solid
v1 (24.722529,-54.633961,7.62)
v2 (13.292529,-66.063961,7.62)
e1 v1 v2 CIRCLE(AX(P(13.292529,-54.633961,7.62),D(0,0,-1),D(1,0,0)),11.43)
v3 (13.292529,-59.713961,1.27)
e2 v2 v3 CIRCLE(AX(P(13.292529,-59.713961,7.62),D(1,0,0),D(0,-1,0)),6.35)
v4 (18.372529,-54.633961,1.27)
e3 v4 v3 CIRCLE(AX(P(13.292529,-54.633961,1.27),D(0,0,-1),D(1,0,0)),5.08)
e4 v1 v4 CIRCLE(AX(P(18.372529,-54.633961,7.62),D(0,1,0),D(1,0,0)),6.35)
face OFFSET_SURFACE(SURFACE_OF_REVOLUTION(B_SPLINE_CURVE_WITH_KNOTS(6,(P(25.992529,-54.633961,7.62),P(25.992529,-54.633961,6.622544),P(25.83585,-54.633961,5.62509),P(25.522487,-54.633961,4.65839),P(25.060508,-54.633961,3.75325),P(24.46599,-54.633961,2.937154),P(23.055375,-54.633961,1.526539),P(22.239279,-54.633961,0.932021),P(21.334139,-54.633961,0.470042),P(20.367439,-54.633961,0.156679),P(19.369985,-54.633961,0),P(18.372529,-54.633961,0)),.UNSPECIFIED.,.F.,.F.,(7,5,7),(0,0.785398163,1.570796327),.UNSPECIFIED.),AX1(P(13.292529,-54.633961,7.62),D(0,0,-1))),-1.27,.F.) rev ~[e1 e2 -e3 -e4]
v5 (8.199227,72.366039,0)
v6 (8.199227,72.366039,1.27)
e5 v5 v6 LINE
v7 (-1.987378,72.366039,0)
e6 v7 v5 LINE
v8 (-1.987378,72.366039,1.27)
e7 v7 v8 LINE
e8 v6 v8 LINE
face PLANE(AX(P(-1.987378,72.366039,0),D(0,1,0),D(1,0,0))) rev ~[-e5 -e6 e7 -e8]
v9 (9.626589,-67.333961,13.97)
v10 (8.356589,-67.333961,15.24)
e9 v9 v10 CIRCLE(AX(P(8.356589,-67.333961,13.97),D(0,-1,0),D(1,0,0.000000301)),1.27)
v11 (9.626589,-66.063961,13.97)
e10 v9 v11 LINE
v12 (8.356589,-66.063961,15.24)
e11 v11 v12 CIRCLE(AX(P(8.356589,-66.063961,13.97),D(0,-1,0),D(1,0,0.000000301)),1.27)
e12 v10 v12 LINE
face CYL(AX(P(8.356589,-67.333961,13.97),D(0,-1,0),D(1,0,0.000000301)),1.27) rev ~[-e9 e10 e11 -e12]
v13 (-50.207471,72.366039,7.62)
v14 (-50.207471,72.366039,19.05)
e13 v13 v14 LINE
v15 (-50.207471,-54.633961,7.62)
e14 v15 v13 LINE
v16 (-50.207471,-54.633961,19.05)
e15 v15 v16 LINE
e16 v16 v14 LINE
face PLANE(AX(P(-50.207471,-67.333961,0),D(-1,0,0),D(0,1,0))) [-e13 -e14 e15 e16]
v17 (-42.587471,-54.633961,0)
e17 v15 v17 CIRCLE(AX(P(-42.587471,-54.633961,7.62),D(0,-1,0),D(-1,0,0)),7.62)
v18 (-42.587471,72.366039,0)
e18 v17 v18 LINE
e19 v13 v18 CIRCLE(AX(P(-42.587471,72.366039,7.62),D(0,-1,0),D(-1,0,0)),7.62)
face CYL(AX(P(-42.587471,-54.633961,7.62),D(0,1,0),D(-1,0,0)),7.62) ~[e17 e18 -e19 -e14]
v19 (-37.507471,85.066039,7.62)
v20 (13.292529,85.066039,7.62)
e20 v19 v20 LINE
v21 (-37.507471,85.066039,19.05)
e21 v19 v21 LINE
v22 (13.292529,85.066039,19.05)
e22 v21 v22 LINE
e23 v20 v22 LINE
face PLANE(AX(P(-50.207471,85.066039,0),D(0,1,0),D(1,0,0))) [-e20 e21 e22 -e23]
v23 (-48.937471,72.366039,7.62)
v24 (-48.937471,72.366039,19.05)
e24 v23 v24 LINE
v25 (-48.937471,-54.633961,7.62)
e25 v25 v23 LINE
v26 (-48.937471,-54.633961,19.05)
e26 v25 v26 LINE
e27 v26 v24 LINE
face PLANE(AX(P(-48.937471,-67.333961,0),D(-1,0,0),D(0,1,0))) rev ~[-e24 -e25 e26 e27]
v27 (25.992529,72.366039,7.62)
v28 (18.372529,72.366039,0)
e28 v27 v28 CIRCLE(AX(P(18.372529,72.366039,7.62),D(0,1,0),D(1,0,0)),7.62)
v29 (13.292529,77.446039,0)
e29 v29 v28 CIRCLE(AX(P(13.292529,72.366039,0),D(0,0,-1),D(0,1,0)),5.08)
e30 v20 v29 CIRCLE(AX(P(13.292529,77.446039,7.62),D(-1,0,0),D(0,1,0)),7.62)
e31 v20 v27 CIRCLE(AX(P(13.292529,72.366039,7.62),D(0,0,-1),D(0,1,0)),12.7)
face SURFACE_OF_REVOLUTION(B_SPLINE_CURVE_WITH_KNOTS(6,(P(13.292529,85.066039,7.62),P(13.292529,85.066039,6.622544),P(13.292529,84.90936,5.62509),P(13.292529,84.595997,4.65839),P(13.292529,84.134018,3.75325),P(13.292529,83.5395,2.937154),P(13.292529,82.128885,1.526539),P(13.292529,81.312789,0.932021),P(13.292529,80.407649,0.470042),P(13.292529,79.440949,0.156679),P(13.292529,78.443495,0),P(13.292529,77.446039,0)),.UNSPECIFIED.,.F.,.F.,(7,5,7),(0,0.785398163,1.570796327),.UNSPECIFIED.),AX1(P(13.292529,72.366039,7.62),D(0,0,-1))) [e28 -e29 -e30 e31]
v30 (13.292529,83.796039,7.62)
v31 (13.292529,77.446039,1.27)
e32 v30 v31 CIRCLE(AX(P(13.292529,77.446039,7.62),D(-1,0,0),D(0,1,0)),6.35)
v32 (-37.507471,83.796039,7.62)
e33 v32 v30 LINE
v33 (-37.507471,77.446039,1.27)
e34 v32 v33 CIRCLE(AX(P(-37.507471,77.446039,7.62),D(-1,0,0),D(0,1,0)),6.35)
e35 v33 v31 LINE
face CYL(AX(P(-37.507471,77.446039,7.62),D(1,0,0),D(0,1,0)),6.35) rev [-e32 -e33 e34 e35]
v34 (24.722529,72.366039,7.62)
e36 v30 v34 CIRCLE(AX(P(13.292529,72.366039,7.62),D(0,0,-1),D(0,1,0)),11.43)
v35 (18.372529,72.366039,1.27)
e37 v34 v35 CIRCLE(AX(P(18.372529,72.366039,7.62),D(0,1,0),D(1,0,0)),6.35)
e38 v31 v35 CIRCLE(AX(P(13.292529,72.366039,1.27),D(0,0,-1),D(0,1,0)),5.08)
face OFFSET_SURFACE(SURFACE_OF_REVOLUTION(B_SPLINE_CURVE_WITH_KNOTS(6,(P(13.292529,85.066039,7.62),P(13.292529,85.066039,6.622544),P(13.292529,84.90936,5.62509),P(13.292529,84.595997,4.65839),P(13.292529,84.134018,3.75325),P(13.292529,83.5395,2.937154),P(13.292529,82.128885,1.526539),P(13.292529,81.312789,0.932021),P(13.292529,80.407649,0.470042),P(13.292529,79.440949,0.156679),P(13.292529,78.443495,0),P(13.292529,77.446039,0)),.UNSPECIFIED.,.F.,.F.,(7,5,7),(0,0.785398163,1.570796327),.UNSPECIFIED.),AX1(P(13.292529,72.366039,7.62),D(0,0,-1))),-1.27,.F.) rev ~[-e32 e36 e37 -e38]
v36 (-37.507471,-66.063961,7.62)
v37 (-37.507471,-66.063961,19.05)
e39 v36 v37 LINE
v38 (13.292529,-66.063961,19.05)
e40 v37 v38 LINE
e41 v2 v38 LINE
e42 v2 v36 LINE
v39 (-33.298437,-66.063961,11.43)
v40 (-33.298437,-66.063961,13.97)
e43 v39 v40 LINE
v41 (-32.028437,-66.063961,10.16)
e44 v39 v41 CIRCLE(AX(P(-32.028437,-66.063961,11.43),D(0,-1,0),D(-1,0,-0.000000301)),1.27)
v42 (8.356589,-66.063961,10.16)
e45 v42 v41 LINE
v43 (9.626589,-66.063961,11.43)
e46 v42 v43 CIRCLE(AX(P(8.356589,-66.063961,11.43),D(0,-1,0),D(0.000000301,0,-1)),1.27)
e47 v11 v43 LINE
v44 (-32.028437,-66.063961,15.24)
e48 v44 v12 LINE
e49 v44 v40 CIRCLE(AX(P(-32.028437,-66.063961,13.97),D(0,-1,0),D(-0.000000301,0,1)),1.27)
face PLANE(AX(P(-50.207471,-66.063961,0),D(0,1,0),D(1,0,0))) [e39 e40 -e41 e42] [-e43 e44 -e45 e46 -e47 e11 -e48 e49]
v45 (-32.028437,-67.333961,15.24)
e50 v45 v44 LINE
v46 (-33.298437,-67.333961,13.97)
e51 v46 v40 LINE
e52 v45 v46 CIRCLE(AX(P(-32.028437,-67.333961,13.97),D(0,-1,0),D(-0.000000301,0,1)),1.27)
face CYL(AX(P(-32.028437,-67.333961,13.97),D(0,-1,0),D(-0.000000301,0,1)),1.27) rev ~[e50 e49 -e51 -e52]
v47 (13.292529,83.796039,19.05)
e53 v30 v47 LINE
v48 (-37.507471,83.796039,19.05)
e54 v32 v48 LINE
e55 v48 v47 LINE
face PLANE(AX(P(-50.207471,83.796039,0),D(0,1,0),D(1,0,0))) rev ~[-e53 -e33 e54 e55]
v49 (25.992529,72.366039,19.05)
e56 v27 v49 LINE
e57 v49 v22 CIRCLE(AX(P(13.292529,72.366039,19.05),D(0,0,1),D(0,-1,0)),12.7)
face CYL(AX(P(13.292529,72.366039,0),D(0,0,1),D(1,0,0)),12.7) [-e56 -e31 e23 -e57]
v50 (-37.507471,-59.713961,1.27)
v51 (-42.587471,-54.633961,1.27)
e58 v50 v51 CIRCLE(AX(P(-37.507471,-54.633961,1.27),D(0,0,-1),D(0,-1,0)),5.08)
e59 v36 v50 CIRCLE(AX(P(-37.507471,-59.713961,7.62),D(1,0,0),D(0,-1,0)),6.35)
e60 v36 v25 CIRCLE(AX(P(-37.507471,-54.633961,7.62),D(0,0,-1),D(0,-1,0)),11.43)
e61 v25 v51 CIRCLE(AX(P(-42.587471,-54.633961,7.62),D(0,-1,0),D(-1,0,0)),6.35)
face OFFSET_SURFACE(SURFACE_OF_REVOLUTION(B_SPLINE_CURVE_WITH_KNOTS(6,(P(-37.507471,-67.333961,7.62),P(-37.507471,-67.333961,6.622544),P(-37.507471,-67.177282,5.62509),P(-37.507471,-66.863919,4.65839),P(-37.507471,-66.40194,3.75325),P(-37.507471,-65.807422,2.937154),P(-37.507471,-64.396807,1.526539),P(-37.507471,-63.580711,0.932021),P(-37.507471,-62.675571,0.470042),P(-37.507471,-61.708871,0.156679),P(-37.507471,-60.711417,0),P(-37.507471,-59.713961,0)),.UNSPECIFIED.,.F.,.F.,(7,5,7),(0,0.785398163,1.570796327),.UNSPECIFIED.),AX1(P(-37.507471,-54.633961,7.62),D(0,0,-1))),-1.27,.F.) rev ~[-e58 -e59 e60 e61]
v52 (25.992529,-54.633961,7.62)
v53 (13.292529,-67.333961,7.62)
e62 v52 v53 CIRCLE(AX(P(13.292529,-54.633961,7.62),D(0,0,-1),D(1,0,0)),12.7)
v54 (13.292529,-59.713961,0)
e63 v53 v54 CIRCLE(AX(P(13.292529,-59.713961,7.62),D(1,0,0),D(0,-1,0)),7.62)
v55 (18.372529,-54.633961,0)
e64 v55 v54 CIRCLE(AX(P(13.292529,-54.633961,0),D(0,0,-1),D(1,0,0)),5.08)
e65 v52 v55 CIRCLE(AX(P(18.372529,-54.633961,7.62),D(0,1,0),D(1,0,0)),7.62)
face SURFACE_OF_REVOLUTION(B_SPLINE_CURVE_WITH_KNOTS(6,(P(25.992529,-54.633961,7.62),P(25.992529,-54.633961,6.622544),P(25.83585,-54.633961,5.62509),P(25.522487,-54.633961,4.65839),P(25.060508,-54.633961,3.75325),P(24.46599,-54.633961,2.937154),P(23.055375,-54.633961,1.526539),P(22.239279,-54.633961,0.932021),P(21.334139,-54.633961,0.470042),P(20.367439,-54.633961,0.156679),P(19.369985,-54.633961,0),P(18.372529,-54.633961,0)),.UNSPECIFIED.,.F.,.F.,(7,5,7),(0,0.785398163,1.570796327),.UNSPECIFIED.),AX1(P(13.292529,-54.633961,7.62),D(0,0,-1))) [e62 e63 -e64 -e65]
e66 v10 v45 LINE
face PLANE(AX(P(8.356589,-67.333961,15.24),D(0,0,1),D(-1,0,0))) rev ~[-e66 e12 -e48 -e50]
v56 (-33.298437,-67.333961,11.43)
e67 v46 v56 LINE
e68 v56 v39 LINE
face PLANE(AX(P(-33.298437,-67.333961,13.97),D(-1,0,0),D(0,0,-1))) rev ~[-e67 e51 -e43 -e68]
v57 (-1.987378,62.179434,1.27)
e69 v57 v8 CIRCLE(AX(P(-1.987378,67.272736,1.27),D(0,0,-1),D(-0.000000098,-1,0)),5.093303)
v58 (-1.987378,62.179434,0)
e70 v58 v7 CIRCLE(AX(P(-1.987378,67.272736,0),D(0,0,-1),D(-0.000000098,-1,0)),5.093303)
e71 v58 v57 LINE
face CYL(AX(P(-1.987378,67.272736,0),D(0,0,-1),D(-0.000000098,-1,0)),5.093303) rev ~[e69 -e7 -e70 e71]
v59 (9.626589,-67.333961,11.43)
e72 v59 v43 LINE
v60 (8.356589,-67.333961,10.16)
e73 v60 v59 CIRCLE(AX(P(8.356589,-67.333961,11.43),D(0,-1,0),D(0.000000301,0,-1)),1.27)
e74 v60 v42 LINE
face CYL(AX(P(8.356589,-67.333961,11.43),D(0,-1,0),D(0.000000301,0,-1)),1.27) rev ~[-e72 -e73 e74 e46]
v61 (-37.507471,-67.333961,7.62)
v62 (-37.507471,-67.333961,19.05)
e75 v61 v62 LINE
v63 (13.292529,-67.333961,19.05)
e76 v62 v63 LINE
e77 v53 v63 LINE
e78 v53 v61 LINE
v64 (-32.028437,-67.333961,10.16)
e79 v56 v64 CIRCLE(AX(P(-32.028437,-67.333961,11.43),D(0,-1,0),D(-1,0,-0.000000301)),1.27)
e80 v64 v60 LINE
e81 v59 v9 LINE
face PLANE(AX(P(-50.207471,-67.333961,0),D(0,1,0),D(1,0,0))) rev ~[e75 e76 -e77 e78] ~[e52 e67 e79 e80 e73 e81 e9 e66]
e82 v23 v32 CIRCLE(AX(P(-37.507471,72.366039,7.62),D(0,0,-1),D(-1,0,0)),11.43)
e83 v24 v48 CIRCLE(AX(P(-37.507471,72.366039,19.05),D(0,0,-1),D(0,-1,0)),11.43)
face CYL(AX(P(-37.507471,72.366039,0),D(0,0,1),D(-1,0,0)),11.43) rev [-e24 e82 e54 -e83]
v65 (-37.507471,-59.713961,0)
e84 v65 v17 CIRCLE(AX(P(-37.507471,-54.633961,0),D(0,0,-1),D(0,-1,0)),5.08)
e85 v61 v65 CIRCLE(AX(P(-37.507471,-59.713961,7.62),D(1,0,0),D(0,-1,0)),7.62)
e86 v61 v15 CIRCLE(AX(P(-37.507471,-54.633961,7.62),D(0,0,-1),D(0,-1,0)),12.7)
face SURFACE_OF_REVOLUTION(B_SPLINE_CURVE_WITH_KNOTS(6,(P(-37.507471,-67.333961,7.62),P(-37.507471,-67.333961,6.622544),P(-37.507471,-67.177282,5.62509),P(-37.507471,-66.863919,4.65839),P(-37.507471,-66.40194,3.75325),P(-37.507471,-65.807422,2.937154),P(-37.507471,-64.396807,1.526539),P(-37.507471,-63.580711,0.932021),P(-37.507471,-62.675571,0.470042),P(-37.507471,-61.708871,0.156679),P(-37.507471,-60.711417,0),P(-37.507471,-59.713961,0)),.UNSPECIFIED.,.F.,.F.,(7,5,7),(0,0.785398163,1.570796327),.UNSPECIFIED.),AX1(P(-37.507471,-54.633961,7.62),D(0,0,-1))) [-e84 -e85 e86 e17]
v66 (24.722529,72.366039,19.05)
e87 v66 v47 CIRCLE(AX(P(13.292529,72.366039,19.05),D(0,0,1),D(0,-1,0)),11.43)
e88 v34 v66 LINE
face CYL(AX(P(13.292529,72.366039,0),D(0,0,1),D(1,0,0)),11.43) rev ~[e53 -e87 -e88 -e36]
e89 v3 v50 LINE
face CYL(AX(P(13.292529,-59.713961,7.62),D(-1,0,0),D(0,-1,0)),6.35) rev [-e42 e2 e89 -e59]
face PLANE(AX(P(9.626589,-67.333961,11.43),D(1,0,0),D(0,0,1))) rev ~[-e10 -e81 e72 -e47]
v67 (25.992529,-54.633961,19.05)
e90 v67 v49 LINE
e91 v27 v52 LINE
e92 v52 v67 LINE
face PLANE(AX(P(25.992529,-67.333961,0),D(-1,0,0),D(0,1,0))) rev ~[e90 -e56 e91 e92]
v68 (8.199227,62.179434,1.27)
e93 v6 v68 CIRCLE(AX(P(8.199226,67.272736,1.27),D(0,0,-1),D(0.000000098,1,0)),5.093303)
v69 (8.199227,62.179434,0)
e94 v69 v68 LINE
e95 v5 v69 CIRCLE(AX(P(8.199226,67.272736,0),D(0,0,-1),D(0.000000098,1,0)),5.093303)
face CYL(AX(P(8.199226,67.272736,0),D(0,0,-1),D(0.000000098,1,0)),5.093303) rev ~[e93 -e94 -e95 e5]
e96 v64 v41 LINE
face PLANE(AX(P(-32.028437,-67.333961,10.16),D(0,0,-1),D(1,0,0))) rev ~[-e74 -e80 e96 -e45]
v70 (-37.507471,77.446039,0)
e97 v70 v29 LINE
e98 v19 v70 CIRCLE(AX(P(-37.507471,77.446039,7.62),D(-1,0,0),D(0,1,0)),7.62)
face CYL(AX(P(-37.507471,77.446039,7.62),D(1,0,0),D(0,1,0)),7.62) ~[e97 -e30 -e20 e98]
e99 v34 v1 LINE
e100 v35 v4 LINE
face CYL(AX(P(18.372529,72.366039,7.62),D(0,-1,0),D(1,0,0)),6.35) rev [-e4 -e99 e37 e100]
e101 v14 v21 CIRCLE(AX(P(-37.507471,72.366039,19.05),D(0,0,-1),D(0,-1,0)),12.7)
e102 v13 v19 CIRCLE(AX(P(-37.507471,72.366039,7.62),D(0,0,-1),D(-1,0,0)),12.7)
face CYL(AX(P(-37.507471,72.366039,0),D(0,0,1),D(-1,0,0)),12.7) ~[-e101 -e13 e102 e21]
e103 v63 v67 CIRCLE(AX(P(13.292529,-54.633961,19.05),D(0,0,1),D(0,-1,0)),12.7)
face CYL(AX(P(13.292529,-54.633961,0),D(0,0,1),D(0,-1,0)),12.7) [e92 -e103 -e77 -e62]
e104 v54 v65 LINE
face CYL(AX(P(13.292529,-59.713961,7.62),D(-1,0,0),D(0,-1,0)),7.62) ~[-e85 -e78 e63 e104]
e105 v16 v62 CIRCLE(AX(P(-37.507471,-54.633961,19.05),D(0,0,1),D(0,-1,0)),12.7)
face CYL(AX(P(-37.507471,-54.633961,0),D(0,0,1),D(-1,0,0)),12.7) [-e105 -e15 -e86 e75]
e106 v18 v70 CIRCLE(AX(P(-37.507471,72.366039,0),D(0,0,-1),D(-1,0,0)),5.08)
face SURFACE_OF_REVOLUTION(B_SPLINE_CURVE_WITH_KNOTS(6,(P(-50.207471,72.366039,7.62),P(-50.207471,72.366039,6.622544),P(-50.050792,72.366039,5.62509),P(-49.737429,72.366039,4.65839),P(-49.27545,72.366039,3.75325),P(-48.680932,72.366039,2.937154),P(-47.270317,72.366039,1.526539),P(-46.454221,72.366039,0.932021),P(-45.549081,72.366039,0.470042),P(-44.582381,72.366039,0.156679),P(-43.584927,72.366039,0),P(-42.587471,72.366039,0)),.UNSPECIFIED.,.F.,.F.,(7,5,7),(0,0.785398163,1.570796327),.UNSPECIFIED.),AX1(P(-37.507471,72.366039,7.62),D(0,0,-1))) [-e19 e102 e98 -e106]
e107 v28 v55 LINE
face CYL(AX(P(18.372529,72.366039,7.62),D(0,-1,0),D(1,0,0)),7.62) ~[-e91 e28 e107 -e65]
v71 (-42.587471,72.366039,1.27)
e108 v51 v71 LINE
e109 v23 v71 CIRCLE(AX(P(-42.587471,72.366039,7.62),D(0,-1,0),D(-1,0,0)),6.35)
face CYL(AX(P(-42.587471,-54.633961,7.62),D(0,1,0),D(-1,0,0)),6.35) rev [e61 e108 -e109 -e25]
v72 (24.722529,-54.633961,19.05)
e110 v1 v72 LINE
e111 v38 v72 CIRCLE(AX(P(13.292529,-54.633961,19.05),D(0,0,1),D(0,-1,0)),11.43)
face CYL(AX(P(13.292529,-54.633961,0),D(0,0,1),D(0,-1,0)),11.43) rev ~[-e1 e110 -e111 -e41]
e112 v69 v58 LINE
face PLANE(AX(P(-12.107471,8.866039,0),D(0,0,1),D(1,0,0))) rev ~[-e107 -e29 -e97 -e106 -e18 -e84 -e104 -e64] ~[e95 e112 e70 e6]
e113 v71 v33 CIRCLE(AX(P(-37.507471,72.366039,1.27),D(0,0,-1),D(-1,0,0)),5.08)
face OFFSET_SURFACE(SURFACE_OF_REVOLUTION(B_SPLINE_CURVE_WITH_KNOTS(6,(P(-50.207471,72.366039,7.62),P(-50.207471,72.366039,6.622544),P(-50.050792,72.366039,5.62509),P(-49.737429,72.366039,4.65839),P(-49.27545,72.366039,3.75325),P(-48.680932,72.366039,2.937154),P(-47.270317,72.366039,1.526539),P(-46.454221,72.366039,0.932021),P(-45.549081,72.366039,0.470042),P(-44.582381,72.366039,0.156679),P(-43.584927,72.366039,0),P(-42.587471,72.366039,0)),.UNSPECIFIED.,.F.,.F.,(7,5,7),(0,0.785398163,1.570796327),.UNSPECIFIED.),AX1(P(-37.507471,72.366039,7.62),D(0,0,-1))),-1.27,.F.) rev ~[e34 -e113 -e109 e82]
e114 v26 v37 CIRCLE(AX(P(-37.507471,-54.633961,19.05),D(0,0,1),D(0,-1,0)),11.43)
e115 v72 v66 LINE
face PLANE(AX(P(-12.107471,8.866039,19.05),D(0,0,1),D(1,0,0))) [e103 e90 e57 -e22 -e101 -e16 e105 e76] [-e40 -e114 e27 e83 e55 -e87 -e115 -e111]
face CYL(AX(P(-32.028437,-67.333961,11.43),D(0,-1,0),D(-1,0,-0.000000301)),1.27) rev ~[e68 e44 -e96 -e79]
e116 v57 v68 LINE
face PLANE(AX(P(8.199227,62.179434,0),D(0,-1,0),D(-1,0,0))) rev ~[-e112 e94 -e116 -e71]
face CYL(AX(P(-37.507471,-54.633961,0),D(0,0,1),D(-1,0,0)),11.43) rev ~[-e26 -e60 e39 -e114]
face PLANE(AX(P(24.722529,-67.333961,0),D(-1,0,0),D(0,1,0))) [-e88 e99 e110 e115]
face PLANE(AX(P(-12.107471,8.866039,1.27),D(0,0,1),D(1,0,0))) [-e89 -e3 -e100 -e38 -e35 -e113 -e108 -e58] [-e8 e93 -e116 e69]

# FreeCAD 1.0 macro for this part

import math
import FreeCAD as App
import Part
import Sketcher
from FreeCAD import Vector
Q = App.Units.Quantity


def edges_at(feature, points):
    """Names of the edges that pass closest to the given points."""
    edges = feature.Shape.Edges
    near = lambda p: min(range(len(edges)), key=lambda i: edges[i].distToShape(Part.Vertex(*p))[0])
    return sorted({f"Edge{near(p) + 1}" for p in points})


def faces_at(feature, points):
    """Names of the faces that lie closest to the given points."""
    faces = feature.Shape.Faces
    near = lambda p: min(range(len(faces)), key=lambda i: faces[i].distToShape(Part.Vertex(*p))[0])
    return sorted({f"Face{near(p) + 1}" for p in points})


def add_polygon(sketch, points):
    """Adds a closed chain of lines whose ends are joined by coincident constraints."""
    first, n = sketch.GeometryCount, len(points)
    for a, b in zip(points, points[1:] + points[:1]):
        sketch.addGeometry(Part.LineSegment(App.Vector(*a, 0), App.Vector(*b, 0)), False)
    for i in range(n):
        sketch.addConstraint(Sketcher.Constraint("Coincident", first + i, 2, first + (i + 1) % n, 1))

doc = App.newDocument("Part")
body = doc.addObject("PartDesign::Body", "Body")

# Sketch on XY plane
sketch1 = doc.addObject("Sketcher::SketchObject", "Sketch")
body.addObject(sketch1)
sketch1.AttachmentSupport = (doc.XY_Plane, [""])
sketch1.MapMode = "FlatFace"
add_polygon(sketch1, [(-50, 85), (-50, -67), (26, -67), (26, 85)])  # lines 0-3
sketch1.addConstraint(Sketcher.Constraint("Vertical", 0))
sketch1.addConstraint(Sketcher.Constraint("Horizontal", 1))
sketch1.addConstraint(Sketcher.Constraint("Vertical", 2))
sketch1.addConstraint(Sketcher.Constraint("Horizontal", 3))
sketch1.addConstraint(Sketcher.Constraint("DistanceX", 1, 1, 1, 2, Q("3 in")))
sketch1.addConstraint(Sketcher.Constraint("DistanceY", 0, 2, 0, 1, Q("6 in")))
sketch1.addConstraint(Sketcher.Constraint("DistanceX", 0, 2, -1, 1, Q("50.207471 mm")))
sketch1.addConstraint(Sketcher.Constraint("DistanceY", 0, 2, -1, 1, Q("67.333961 mm")))
pad1 = doc.addObject("PartDesign::Pad", "Pad")
body.addObject(pad1)
pad1.Profile = sketch1
pad1.Length = Q("0.75 in")
doc.recompute()

fillet = doc.addObject("PartDesign::Fillet", "Fillet")
body.addObject(fillet)
fillet.Base = (pad1, edges_at(pad1, [
    (25.993, 85.066, 9.525),
    (25.993, -67.334, 9.525),
    (-50.207, 85.066, 9.525),
    (-50.207, -67.334, 9.525),
]))
fillet.Radius = Q("0.5 in")
doc.recompute()

fillet2 = doc.addObject("PartDesign::Fillet", "Fillet001")
body.addObject(fillet2)
fillet2.Base = (fillet, edges_at(fillet, [
    (-50.207, 8.866, 0),
    (-46.488, 81.346, 0),
    (-46.488, -63.614, 0),
    (-12.107, 85.066, 0),
    (-12.107, -67.334, 0),
    (22.273, 81.346, 0),
    (22.273, -63.614, 0),
    (25.993, 8.866, 0),
]))
fillet2.Radius = Q("0.3 in")
doc.recompute()

thickness = doc.addObject("PartDesign::Thickness", "Thickness")
body.addObject(thickness)
thickness.Base = (fillet2, faces_at(fillet2, [(-12.107, 8.866, 19.05)]))
thickness.Value = Q("0.05 in")
thickness.Reversed = True
thickness.Join = "Arc"

# Sketch on XY plane
sketch2 = doc.addObject("Sketcher::SketchObject", "Sketch001")
body.addObject(sketch2)
sketch2.AttachmentSupport = (doc.XY_Plane, [""])
sketch2.MapMode = "FlatFace"
sketch2.addGeometry(Part.LineSegment(Vector(-2, 72, 0), Vector(8, 72, 0)), False)
sketch2.addGeometry(Part.ArcOfCircle(Part.Circle(Vector(8, 67, 0), Vector(0, 0, 1), 5), math.radians(-90), math.radians(90)), False)
sketch2.addGeometry(Part.LineSegment(Vector(8, 62, 0), Vector(-2, 62, 0)), False)
sketch2.addGeometry(Part.ArcOfCircle(Part.Circle(Vector(-2, 67, 0), Vector(0, 0, 1), 5), math.radians(90), math.radians(270)), False)
sketch2.addConstraint(Sketcher.Constraint("Tangent", 0, 2, 1, 2))
sketch2.addConstraint(Sketcher.Constraint("Tangent", 1, 1, 2, 1))
sketch2.addConstraint(Sketcher.Constraint("Tangent", 2, 2, 3, 2))
sketch2.addConstraint(Sketcher.Constraint("Tangent", 3, 1, 0, 1))
sketch2.addConstraint(Sketcher.Constraint("Horizontal", 0))
sketch2.addConstraint(Sketcher.Constraint("Horizontal", 2))
sketch2.addConstraint(Sketcher.Constraint("Radius", 1, Q("5.093303 mm")))
sketch2.addConstraint(Sketcher.Constraint("DistanceX", 0, 1, 0, 2, Q("10.186605 mm")))
sketch2.addConstraint(Sketcher.Constraint("DistanceY", -1, 1, 0, 2, Q("72.366039 mm")))
sketch2.addConstraint(Sketcher.Constraint("DistanceX", 2, 2, -1, 1, Q("1.987378 mm")))
pocket1 = doc.addObject("PartDesign::Pocket", "Pocket")
body.addObject(pocket1)
pocket1.Profile = sketch2
pocket1.Length = Q("1 in")
pocket1.Reversed = True

# Sketch on XZ plane
sketch3 = doc.addObject("Sketcher::SketchObject", "Sketch002")
body.addObject(sketch3)
sketch3.AttachmentSupport = (doc.XZ_Plane, [""])
sketch3.MapMode = "FlatFace"
sketch3.AttachmentOffset = App.Placement(Vector(0, 0, 67.333961), App.Rotation())
sketch3.addGeometry(Part.LineSegment(Vector(8.4, 15.2, 0), Vector(-32, 15.2, 0)), False)
sketch3.addGeometry(Part.ArcOfCircle(Part.Circle(Vector(-32, 14, 0), Vector(0, 0, 1), 1.3), math.radians(90), math.radians(180)), False)
sketch3.addGeometry(Part.LineSegment(Vector(-33.3, 14, 0), Vector(-33.3, 11.4, 0)), False)
sketch3.addGeometry(Part.ArcOfCircle(Part.Circle(Vector(-32, 11.4, 0), Vector(0, 0, 1), 1.3), math.radians(-180), math.radians(-90)), False)
sketch3.addGeometry(Part.LineSegment(Vector(-32, 10.2, 0), Vector(8.4, 10.2, 0)), False)
sketch3.addGeometry(Part.ArcOfCircle(Part.Circle(Vector(8.4, 11.4, 0), Vector(0, 0, 1), 1.3), math.radians(-90), math.radians(0)), False)
sketch3.addGeometry(Part.LineSegment(Vector(9.6, 11.4, 0), Vector(9.6, 14, 0)), False)
sketch3.addGeometry(Part.ArcOfCircle(Part.Circle(Vector(8.4, 14, 0), Vector(0, 0, 1), 1.3), math.radians(0), math.radians(90)), False)
sketch3.addConstraint(Sketcher.Constraint("Tangent", 0, 2, 1, 1))
sketch3.addConstraint(Sketcher.Constraint("Tangent", 1, 2, 2, 1))
sketch3.addConstraint(Sketcher.Constraint("Tangent", 2, 2, 3, 1))
sketch3.addConstraint(Sketcher.Constraint("Tangent", 3, 2, 4, 1))
sketch3.addConstraint(Sketcher.Constraint("Tangent", 4, 2, 5, 1))
sketch3.addConstraint(Sketcher.Constraint("Tangent", 5, 2, 6, 1))
sketch3.addConstraint(Sketcher.Constraint("Tangent", 6, 2, 7, 1))
sketch3.addConstraint(Sketcher.Constraint("Tangent", 7, 2, 0, 1))
sketch3.addConstraint(Sketcher.Constraint("Horizontal", 0))
sketch3.addConstraint(Sketcher.Constraint("Vertical", 2))
sketch3.addConstraint(Sketcher.Constraint("Horizontal", 4))
sketch3.addConstraint(Sketcher.Constraint("Vertical", 6))
sketch3.addConstraint(Sketcher.Constraint("Equal", 1, 3))
sketch3.addConstraint(Sketcher.Constraint("Equal", 3, 5))
sketch3.addConstraint(Sketcher.Constraint("Equal", 5, 7))
sketch3.addConstraint(Sketcher.Constraint("Radius", 1, Q("0.05 in")))
sketch3.addConstraint(Sketcher.Constraint("DistanceY", 2, 2, 2, 1, Q("0.1 in")))
sketch3.addConstraint(Sketcher.Constraint("DistanceY", -1, 1, 0, 2, Q("0.6 in")))
sketch3.addConstraint(Sketcher.Constraint("DistanceX", 0, 2, 0, 1, Q("40.385026 mm")))
sketch3.addConstraint(Sketcher.Constraint("DistanceX", -1, 1, 5, 3, Q("8.356589 mm")))
pocket2 = doc.addObject("PartDesign::Pocket", "Pocket001")
body.addObject(pocket2)
pocket2.Profile = sketch3
pocket2.Length = Q("1 in")

doc.recompute()
